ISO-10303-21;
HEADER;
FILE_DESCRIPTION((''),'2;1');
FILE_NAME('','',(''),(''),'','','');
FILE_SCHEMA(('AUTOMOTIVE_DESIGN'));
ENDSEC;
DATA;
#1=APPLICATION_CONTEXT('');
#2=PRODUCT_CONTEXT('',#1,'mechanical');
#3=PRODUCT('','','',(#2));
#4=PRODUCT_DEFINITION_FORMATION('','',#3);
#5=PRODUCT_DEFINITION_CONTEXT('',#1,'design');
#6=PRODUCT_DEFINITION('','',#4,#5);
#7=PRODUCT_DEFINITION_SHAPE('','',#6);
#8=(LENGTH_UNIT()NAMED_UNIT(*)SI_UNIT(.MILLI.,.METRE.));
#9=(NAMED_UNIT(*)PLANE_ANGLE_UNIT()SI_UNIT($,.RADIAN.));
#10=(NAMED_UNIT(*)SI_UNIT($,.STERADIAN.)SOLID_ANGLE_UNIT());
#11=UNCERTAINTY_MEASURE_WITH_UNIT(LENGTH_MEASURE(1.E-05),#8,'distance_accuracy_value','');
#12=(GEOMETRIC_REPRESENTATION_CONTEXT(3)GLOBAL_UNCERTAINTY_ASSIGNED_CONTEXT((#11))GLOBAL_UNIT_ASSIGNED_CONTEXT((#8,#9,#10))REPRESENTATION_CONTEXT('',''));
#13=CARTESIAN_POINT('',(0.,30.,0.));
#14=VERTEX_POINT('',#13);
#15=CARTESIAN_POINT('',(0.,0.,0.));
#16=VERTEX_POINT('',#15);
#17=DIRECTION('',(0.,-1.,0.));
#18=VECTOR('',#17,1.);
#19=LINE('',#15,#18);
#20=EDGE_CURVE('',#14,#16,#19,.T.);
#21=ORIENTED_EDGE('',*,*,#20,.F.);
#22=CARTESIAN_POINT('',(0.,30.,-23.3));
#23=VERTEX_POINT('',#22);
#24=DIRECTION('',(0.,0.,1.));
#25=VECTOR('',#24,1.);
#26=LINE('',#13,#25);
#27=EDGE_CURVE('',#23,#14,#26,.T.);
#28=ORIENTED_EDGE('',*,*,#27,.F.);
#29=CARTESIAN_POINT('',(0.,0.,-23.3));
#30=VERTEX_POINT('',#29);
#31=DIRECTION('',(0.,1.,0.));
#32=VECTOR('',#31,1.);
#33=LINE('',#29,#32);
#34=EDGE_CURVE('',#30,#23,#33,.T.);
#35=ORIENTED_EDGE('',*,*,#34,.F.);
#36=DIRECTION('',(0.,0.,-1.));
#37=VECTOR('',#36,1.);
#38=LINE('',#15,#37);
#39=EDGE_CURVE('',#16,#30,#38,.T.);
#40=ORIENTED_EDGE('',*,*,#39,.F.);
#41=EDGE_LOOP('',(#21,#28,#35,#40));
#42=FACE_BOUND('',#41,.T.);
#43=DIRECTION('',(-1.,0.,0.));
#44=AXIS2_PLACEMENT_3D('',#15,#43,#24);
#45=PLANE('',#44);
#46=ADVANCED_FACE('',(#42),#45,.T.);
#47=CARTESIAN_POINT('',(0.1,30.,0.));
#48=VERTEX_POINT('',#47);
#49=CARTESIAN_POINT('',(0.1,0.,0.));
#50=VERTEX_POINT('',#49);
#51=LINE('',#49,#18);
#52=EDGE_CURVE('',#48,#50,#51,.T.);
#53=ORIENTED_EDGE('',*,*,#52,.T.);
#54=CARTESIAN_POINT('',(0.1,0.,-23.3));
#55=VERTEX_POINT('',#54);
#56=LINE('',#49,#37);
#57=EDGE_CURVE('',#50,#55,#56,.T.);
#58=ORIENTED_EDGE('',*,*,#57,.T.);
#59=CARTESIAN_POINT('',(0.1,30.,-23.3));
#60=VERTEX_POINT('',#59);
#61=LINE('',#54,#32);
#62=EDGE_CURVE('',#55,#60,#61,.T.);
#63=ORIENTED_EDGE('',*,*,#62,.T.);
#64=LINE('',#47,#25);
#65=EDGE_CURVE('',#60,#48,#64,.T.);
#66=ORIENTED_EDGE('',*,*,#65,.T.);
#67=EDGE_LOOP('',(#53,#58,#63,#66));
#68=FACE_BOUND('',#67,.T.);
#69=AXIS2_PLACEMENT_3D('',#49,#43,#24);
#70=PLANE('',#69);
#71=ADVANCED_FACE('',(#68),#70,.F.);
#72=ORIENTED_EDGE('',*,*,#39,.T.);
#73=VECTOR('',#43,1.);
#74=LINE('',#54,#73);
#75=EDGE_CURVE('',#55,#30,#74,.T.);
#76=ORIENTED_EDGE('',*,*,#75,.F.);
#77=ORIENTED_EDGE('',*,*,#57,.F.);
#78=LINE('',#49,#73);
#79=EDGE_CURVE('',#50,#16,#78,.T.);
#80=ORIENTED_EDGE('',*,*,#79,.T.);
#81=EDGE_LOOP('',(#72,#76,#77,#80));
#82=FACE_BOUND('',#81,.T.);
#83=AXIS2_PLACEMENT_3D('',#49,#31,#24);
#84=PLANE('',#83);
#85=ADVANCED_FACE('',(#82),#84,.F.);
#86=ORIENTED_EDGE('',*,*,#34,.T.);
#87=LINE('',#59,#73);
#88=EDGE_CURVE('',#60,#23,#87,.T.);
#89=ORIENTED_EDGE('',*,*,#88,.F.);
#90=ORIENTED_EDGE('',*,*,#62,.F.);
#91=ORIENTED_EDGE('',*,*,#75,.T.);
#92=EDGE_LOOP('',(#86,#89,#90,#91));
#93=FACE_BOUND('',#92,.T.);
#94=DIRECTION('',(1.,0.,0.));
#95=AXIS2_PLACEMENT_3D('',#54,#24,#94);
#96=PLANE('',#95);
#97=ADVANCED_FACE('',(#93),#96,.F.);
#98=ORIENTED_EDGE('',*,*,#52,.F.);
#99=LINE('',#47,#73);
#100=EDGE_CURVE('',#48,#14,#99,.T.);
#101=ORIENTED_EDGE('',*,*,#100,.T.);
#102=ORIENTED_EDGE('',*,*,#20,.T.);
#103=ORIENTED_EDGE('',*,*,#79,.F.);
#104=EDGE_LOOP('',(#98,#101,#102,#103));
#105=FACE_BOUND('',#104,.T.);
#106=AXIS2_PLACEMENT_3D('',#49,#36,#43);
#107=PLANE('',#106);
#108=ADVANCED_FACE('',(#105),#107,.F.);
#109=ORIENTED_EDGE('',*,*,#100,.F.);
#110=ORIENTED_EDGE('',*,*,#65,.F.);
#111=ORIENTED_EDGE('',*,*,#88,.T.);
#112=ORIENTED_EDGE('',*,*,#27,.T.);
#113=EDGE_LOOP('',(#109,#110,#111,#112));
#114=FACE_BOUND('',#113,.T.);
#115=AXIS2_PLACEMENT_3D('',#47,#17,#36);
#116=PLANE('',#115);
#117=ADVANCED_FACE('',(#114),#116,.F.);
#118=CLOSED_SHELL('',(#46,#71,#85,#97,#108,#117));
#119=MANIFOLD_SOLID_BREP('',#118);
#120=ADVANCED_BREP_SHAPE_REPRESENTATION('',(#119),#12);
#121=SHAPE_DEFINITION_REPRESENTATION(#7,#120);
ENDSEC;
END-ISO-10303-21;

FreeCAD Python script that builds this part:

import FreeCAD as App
import Part
import Sketcher

V = App.Vector


def add_polygon(sketch, points):
    """Adds a closed chain of lines whose ends are joined by coincident constraints."""
    first, n = sketch.GeometryCount, len(points)
    for a, b in zip(points, points[1:] + points[:1]):
        sketch.addGeometry(Part.LineSegment(App.Vector(*a, 0), App.Vector(*b, 0)), False)
    for i in range(n):
        sketch.addConstraint(Sketcher.Constraint("Coincident", first + i, 2, first + (i + 1) % n, 1))

doc = App.newDocument("Part")
body = doc.addObject("PartDesign::Body", "Body")

sketch1 = doc.addObject("Sketcher::SketchObject", "Sketch")
body.addObject(sketch1)
sketch1.AttachmentSupport = (doc.YZ_Plane, [""])
sketch1.MapMode = "FlatFace"
add_polygon(sketch1, [(30, 0), (0, 0), (0, -23.3), (30, -23.3)])
sketch1.addConstraint(Sketcher.Constraint("Horizontal", 0))
sketch1.addConstraint(Sketcher.Constraint("Vertical", 1))
sketch1.addConstraint(Sketcher.Constraint("Horizontal", 2))
sketch1.addConstraint(Sketcher.Constraint("Vertical", 3))
sketch1.addConstraint(Sketcher.Constraint("Coincident", 0, 2, -1, 1))
sketch1.addConstraint(Sketcher.Constraint("DistanceX", 0, 2, 0, 1, 30.0))
sketch1.addConstraint(Sketcher.Constraint("DistanceY", 1, 2, 1, 1, 23.3))
pad1 = doc.addObject("PartDesign::Pad", "Pad")
body.addObject(pad1)
pad1.Profile = sketch1
pad1.Length = 0.1

doc.recompute()
